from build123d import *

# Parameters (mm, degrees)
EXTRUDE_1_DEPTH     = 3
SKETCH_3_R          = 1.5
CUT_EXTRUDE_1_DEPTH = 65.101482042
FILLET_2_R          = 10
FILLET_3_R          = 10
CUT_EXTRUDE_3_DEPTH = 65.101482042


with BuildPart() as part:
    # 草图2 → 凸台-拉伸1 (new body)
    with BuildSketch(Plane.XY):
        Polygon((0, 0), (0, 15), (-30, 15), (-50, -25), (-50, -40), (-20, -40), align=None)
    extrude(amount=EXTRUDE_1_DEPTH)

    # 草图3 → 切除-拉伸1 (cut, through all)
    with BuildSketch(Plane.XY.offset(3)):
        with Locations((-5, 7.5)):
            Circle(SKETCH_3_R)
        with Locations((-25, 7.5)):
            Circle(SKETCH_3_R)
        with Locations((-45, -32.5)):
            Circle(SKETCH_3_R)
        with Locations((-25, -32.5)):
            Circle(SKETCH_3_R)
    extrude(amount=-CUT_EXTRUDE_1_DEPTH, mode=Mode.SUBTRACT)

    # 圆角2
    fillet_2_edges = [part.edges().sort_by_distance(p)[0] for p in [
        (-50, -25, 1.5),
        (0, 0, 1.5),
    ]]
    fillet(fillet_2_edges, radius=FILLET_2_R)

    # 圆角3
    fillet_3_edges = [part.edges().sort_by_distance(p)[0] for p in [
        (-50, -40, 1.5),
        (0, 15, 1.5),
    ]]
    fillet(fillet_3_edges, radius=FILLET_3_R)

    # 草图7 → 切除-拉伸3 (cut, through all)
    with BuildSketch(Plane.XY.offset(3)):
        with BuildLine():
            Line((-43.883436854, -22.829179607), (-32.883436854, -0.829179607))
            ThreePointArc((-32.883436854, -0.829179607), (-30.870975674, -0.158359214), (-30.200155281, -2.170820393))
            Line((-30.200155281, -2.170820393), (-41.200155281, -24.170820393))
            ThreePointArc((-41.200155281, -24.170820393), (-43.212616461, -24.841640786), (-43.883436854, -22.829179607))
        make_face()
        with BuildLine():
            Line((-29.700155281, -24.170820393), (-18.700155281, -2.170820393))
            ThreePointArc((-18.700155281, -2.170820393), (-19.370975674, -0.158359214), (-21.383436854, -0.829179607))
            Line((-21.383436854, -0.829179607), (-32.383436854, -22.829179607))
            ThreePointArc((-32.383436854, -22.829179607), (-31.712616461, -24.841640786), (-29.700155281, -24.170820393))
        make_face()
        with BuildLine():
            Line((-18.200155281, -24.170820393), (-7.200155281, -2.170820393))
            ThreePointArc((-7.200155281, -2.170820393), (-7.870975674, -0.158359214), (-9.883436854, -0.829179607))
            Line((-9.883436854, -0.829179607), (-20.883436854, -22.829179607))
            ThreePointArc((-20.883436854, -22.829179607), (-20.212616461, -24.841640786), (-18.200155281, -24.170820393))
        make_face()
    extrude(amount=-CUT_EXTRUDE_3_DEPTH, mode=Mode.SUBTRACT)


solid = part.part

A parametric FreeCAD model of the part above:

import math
import FreeCAD as App
import Part
import Sketcher

V = App.Vector
Q = App.Units.Quantity


def edges_at(feature, points):
    """Names of the edges that pass closest to the given points."""
    edges = feature.Shape.Edges
    near = lambda p: min(range(len(edges)), key=lambda i: edges[i].distToShape(Part.Vertex(*p))[0])
    return sorted({f"Edge{near(p) + 1}" for p in points})

doc = App.newDocument("Part")
body = doc.addObject("PartDesign::Body", "Body")

# Sketch on XY plane
sketch1 = doc.addObject("Sketcher::SketchObject", "Sketch")
body.addObject(sketch1)
sketch1.AttachmentSupport = (doc.XY_Plane, [""])
sketch1.MapMode = "FlatFace"
sketch1.addGeometry([
    Part.LineSegment(V(0, 0, 0), V(0, 15, 0)),  # 0
    Part.LineSegment(V(0, 15, 0), V(-30, 15, 0)),  # 1
    Part.LineSegment(V(-30, 15, 0), V(-50, -25, 0)),  # 2
    Part.LineSegment(V(-50, -25, 0), V(-50, -40, 0)),  # 3
    Part.LineSegment(V(-50, -40, 0), V(-20, -40, 0)),  # 4
    Part.LineSegment(V(-20, -40, 0), V(0, 0, 0)),  # 5
], False)
sketch1.addConstraint([
    Sketcher.Constraint("Coincident", 0, 2, 1, 1),
    Sketcher.Constraint("Coincident", 1, 2, 2, 1),
    Sketcher.Constraint("Coincident", 2, 2, 3, 1),
    Sketcher.Constraint("Coincident", 3, 2, 4, 1),
    Sketcher.Constraint("Coincident", 4, 2, 5, 1),
    Sketcher.Constraint("Coincident", 5, 2, 0, 1),
    Sketcher.Constraint("Vertical", 0),
    Sketcher.Constraint("Horizontal", 1),
    Sketcher.Constraint("Vertical", 3),
    Sketcher.Constraint("Horizontal", 4),
    Sketcher.Constraint("Coincident", 5, 2, -1, 1),
    Sketcher.Constraint("Parallel", 2, 5),
    Sketcher.Constraint("Equal", 1, 4),
    Sketcher.Constraint("DistanceX", 1, 2, 1, 1, Q("30 mm")),
    Sketcher.Constraint("DistanceY", 0, 1, 0, 2, Q("15 mm")),
    Sketcher.Constraint("DistanceX", 2, 2, -1, 1, Q("50 mm")),
    Sketcher.Constraint("DistanceY", 2, 2, -1, 1, Q("25 mm")),
])
pad1 = doc.addObject("PartDesign::Pad", "Pad")
body.addObject(pad1)
pad1.Profile = sketch1
pad1.Length = 3

# Sketch on XY plane
sketch2 = doc.addObject("Sketcher::SketchObject", "Sketch001")
body.addObject(sketch2)
sketch2.AttachmentSupport = (doc.XY_Plane, [""])
sketch2.MapMode = "FlatFace"
sketch2.AttachmentOffset = App.Placement(V(0, 0, 3), App.Rotation())
sketch2.addGeometry([
    Part.Circle(V(-5, 7.5, 0), V(0, 0, 1), 1.5),
    Part.Circle(V(-25, 7.5, 0), V(0, 0, 1), 1.5),
    Part.Circle(V(-45, -32.5, 0), V(0, 0, 1), 1.5),
    Part.Circle(V(-25, -32.5, 0), V(0, 0, 1), 1.5),
], False)
sketch2.addConstraint([
    Sketcher.Constraint("Equal", 0, 1),
    Sketcher.Constraint("Equal", 1, 2),
    Sketcher.Constraint("Equal", 2, 3),
    Sketcher.Constraint("Horizontal", 0, 3, 1, 3),
    Sketcher.Constraint("Horizontal", 2, 3, 3, 3),
    Sketcher.Constraint("Vertical", 1, 3, 3, 3),
    Sketcher.Constraint("Diameter", 0, Q("3 mm")),
    Sketcher.Constraint("DistanceX", 0, 3, -1, 1, Q("5 mm")),
    Sketcher.Constraint("DistanceX", 1, 3, -1, 1, Q("25 mm")),
    Sketcher.Constraint("DistanceX", 2, 3, -1, 1, Q("45 mm")),
    Sketcher.Constraint("DistanceY", 2, 3, 1, 3, Q("40 mm")),
    Sketcher.Constraint("DistanceY", -1, 1, 0, 3, Q("7.5 mm")),
])
pocket1 = doc.addObject("PartDesign::Pocket", "Pocket")
body.addObject(pocket1)
pocket1.Profile = sketch2
pocket1.Type = "ThroughAll"
doc.recompute()

fillet = doc.addObject("PartDesign::Fillet", "Fillet")
body.addObject(fillet)
fillet.Base = (pocket1, edges_at(pocket1, [(-50, -25, 1.5), (0, 0, 1.5)]))
fillet.Radius = 10
doc.recompute()

fillet2 = doc.addObject("PartDesign::Fillet", "Fillet001")
body.addObject(fillet2)
fillet2.Base = (fillet, edges_at(fillet, [(-50, -40, 1.5), (0, 15, 1.5)]))
fillet2.Radius = 10

# Sketch on XY plane
sketch3 = doc.addObject("Sketcher::SketchObject", "Sketch002")
body.addObject(sketch3)
sketch3.AttachmentSupport = (doc.XY_Plane, [""])
sketch3.MapMode = "FlatFace"
sketch3.AttachmentOffset = App.Placement(V(0, 0, 3), App.Rotation())
sketch3.addGeometry([
    Part.LineSegment(V(-32.883437, -0.82918, 0), V(-43.883437, -22.82918, 0)),  # 0
    Part.ArcOfCircle(Part.Circle(V(-42.541796, -23.5, 0), V(0, 0, 1), 1.5), math.radians(153.434949), math.radians(333.434949)),  # 1
    Part.LineSegment(V(-41.200155, -24.17082, 0), V(-30.200155, -2.17082, 0)),  # 2
    Part.ArcOfCircle(Part.Circle(V(-31.541796, -1.5, 0), V(0, 0, 1), 1.5), math.radians(-26.565051), math.radians(153.434949)),  # 3
    Part.LineSegment(V(-29.700155, -24.17082, 0), V(-18.700155, -2.17082, 0)),  # 4
    Part.ArcOfCircle(Part.Circle(V(-20.041796, -1.5, 0), V(0, 0, 1), 1.5), math.radians(-26.565051), math.radians(153.434949)),  # 5
    Part.LineSegment(V(-21.383437, -0.82918, 0), V(-32.383437, -22.82918, 0)),  # 6
    Part.ArcOfCircle(Part.Circle(V(-31.041796, -23.5, 0), V(0, 0, 1), 1.5), math.radians(153.434949), math.radians(333.434949)),  # 7
    Part.LineSegment(V(-18.200155, -24.17082, 0), V(-7.200155, -2.17082, 0)),  # 8
    Part.ArcOfCircle(Part.Circle(V(-8.541796, -1.5, 0), V(0, 0, 1), 1.5), math.radians(-26.565051), math.radians(153.434949)),  # 9
    Part.LineSegment(V(-9.883437, -0.82918, 0), V(-20.883437, -22.82918, 0)),  # 10
    Part.ArcOfCircle(Part.Circle(V(-19.541796, -23.5, 0), V(0, 0, 1), 1.5), math.radians(153.434949), math.radians(333.434949)),  # 11
], False)
sketch3.addConstraint([
    Sketcher.Constraint("Tangent", 0, 2, 1, 1),
    Sketcher.Constraint("Tangent", 1, 2, 2, 1),
    Sketcher.Constraint("Tangent", 2, 2, 3, 1),
    Sketcher.Constraint("Tangent", 3, 2, 0, 1),
    Sketcher.Constraint("Tangent", 4, 2, 5, 1),
    Sketcher.Constraint("Tangent", 5, 2, 6, 1),
    Sketcher.Constraint("Tangent", 6, 2, 7, 1),
    Sketcher.Constraint("Tangent", 7, 2, 4, 1),
    Sketcher.Constraint("Tangent", 8, 2, 9, 1),
    Sketcher.Constraint("Tangent", 9, 2, 10, 1),
    Sketcher.Constraint("Tangent", 10, 2, 11, 1),
    Sketcher.Constraint("Tangent", 11, 2, 8, 1),
    Sketcher.Constraint("Equal", 1, 3),
    Sketcher.Constraint("Equal", 3, 5),
    Sketcher.Constraint("Equal", 5, 7),
    Sketcher.Constraint("Equal", 7, 9),
    Sketcher.Constraint("Equal", 9, 11),
    Sketcher.Constraint("Parallel", 2, 4),
    Sketcher.Constraint("Parallel", 6, 8),
    Sketcher.Constraint("Horizontal", 3, 3, 5, 3),
    Sketcher.Constraint("Horizontal", 1, 3, 7, 3),
    Sketcher.Constraint("Horizontal", 5, 3, 9, 3),
    Sketcher.Constraint("Horizontal", 7, 3, 11, 3),
    Sketcher.Constraint("Radius", 1, Q("1.5 mm")),
    Sketcher.Constraint("DistanceX", 1, 3, 3, 3, Q("11 mm")),
    Sketcher.Constraint("DistanceY", 1, 3, 3, 3, Q("22 mm")),
    Sketcher.Constraint("DistanceX", 3, 3, 9, 3, Q("23 mm")),
    Sketcher.Constraint("DistanceY", 1, 3, -1, 1, Q("23.5 mm")),
    Sketcher.Constraint("DistanceX", 3, 3, 5, 3, Q("11.5 mm")),
    Sketcher.Constraint("DistanceX", 1, 3, -1, 1, Q("42.541796 mm")),
])
pocket2 = doc.addObject("PartDesign::Pocket", "Pocket001")
body.addObject(pocket2)
pocket2.Profile = sketch3
pocket2.Type = "ThroughAll"

doc.recompute()
